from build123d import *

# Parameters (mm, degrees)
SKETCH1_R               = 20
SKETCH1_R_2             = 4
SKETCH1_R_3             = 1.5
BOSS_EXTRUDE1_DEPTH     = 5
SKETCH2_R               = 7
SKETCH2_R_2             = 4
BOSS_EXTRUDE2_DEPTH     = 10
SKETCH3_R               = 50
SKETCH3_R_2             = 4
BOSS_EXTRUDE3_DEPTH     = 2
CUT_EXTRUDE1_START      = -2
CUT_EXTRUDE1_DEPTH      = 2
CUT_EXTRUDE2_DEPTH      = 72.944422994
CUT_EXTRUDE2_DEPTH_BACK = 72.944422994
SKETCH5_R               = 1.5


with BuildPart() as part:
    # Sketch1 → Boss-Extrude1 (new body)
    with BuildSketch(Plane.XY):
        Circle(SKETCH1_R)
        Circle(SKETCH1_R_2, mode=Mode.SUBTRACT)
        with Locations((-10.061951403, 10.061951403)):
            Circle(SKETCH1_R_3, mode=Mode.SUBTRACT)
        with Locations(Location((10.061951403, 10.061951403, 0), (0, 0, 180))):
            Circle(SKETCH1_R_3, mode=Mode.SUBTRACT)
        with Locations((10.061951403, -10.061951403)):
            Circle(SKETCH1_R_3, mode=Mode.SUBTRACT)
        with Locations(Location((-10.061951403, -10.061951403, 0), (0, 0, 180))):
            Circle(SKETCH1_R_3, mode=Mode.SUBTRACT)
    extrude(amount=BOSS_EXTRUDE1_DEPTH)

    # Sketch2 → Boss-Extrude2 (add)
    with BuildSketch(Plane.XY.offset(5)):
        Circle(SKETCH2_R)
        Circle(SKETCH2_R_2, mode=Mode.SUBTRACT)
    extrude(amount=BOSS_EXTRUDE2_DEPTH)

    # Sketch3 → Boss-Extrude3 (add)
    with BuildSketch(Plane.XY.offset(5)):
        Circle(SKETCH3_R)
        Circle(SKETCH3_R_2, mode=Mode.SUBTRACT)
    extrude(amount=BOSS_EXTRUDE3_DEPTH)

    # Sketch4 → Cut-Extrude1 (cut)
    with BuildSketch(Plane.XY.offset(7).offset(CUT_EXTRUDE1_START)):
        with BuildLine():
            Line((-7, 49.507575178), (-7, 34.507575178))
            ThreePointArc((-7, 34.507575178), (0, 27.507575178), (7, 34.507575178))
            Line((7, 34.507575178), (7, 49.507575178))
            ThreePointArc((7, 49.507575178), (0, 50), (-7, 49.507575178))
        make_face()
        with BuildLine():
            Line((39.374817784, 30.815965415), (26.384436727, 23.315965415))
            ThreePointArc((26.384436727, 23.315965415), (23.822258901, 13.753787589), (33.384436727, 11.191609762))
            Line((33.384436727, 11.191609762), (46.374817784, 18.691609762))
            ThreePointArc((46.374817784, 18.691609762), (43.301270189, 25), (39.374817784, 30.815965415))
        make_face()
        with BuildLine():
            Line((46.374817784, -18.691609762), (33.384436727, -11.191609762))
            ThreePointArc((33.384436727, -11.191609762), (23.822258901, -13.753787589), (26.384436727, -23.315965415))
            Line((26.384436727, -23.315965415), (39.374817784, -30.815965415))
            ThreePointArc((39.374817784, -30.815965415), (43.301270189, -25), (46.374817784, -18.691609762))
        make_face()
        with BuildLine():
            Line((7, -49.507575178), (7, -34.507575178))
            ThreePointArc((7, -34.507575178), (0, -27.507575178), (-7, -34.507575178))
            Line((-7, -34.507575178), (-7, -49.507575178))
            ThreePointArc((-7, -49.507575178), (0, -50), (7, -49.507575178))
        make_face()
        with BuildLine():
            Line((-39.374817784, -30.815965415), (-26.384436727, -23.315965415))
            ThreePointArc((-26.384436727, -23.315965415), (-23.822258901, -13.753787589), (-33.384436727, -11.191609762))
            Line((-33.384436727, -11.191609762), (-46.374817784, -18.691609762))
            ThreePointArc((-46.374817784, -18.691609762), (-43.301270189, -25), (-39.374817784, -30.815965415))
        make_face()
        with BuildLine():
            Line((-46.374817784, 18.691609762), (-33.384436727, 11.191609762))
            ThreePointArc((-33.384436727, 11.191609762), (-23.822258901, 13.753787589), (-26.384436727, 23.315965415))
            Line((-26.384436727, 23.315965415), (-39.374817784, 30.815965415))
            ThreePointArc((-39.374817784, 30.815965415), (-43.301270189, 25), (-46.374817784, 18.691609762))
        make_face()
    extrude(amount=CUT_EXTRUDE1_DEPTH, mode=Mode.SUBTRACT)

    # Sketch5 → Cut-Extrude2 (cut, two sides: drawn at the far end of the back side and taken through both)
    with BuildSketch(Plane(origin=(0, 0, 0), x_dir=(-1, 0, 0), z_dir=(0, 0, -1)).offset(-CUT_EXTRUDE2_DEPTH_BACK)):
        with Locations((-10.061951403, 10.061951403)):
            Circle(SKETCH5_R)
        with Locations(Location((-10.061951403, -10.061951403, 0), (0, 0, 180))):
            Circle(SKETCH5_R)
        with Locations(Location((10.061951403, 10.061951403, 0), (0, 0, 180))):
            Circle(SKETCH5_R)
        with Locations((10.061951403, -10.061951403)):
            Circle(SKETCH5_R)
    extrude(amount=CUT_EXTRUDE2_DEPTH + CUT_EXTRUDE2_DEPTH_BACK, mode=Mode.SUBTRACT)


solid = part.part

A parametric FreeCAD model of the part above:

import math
import FreeCAD as App
import Part
import Sketcher
Q = App.Units.Quantity

doc = App.newDocument("Part")
body = doc.addObject("PartDesign::Body", "Body")

# Sketch on XY plane
sketch1 = doc.addObject("Sketcher::SketchObject", "Sketch")
body.addObject(sketch1)
sketch1.AttachmentSupport = (doc.XY_Plane, [""])
sketch1.MapMode = "FlatFace"
sketch1.addGeometry([
    Part.Circle(App.Vector(0, 0, 0), App.Vector(0, 0, 1), 20),  # 0
    Part.Circle(App.Vector(-10.1, -10.1, 0), App.Vector(0, 0, 1), 1.5),  # 1
    Part.Circle(App.Vector(10.1, -10.1, 0), App.Vector(0, 0, 1), 1.5),  # 2
    Part.Circle(App.Vector(0, 0, 0), App.Vector(0, 0, 1), 4),  # 3
    Part.Circle(App.Vector(-10.1, 10.1, 0), App.Vector(0, 0, 1), 1.5),  # 4
    Part.Circle(App.Vector(10.1, 10.1, 0), App.Vector(0, 0, 1), 1.5),  # 5
], False)
sketch1.addConstraint([
    Sketcher.Constraint("Coincident", 0, 3, -1, 1),
    Sketcher.Constraint("Coincident", 3, 3, -1, 1),
    Sketcher.Constraint("Equal", 1, 2),
    Sketcher.Constraint("Equal", 2, 4),
    Sketcher.Constraint("Equal", 4, 5),
    Sketcher.Constraint("Symmetric", 2, 3, 4, 3, -1, 1),
    Sketcher.Constraint("Symmetric", 1, 3, 5, 3, -1, 1),
    Sketcher.Constraint("Symmetric", 1, 3, 2, 3, -2),
    Sketcher.Constraint("Diameter", 0, 40.0),
    Sketcher.Constraint("Diameter", 1, 3.0),
    Sketcher.Constraint("Diameter", 3, 8.0),
    Sketcher.Constraint("DistanceX", 1, 3, -1, 1, 10.061951),
    Sketcher.Constraint("DistanceY", 1, 3, -1, 1, 10.061951),
])
pad1 = doc.addObject("PartDesign::Pad", "Pad")
body.addObject(pad1)
pad1.Profile = sketch1
pad1.Length = 5

# Sketch on XY plane
sketch2 = doc.addObject("Sketcher::SketchObject", "Sketch001")
body.addObject(sketch2)
sketch2.AttachmentSupport = (doc.XY_Plane, [""])
sketch2.MapMode = "FlatFace"
sketch2.AttachmentOffset = App.Placement(App.Vector(0, 0, 5), App.Rotation())
sketch2.addGeometry([
    Part.Circle(App.Vector(0, 0, 0), App.Vector(0, 0, 1), 7),
    Part.Circle(App.Vector(0, 0, 0), App.Vector(0, 0, 1), 4),
], False)
sketch2.addConstraint([
    Sketcher.Constraint("Coincident", 0, 3, -1, 1),
    Sketcher.Constraint("Coincident", 1, 3, -1, 1),
    Sketcher.Constraint("Diameter", 0, 14.0),
    Sketcher.Constraint("Diameter", 1, 8.0),
])
pad2 = doc.addObject("PartDesign::Pad", "Pad001")
body.addObject(pad2)
pad2.Profile = sketch2
pad2.Length = 10

# Sketch on XY plane
sketch3 = doc.addObject("Sketcher::SketchObject", "Sketch002")
body.addObject(sketch3)
sketch3.AttachmentSupport = (doc.XY_Plane, [""])
sketch3.MapMode = "FlatFace"
sketch3.AttachmentOffset = App.Placement(App.Vector(0, 0, 5), App.Rotation())
sketch3.addGeometry([
    Part.Circle(App.Vector(0, 0, 0), App.Vector(0, 0, 1), 50),
    Part.Circle(App.Vector(0, 0, 0), App.Vector(0, 0, 1), 4),
], False)
sketch3.addConstraint([
    Sketcher.Constraint("Coincident", 0, 3, -1, 1),
    Sketcher.Constraint("Coincident", 1, 3, -1, 1),
    Sketcher.Constraint("Diameter", 0, 100.0),
    Sketcher.Constraint("Diameter", 1, 8.0),
])
pad3 = doc.addObject("PartDesign::Pad", "Pad002")
body.addObject(pad3)
pad3.Profile = sketch3
pad3.Length = 2

# Sketch on XY plane
sketch4 = doc.addObject("Sketcher::SketchObject", "Sketch003")
body.addObject(sketch4)
sketch4.AttachmentSupport = (doc.XY_Plane, [""])
sketch4.MapMode = "FlatFace"
sketch4.AttachmentOffset = App.Placement(App.Vector(0, 0, 5), App.Rotation())
sketch4.addGeometry([
    Part.LineSegment(App.Vector(-7, 50, 0), App.Vector(-7, 35, 0)),  # 0
    Part.ArcOfCircle(Part.Circle(App.Vector(0, 35, 0), App.Vector(0, 0, 1), 7), math.radians(180), math.radians(360)),  # 1
    Part.LineSegment(App.Vector(7, 35, 0), App.Vector(7, 50, 0)),  # 2
    Part.ArcOfCircle(Part.Circle(App.Vector(0, 0, 0), App.Vector(0, 0, 1), 50), math.radians(81.95), math.radians(98.05)),  # 3
    Part.LineSegment(App.Vector(39, 31, 0), App.Vector(26, 23, 0)),  # 4
    Part.ArcOfCircle(Part.Circle(App.Vector(30, 17, 0), App.Vector(0, 0, 1), 7), math.radians(120), math.radians(300)),  # 5
    Part.LineSegment(App.Vector(33, 11, 0), App.Vector(46, 19, 0)),  # 6
    Part.ArcOfCircle(Part.Circle(App.Vector(0, 0, 0), App.Vector(0, 0, 1), 50), math.radians(21.95), math.radians(38.05)),  # 7
    Part.LineSegment(App.Vector(46, -19, 0), App.Vector(33, -11, 0)),  # 8
    Part.ArcOfCircle(Part.Circle(App.Vector(30, -17, 0), App.Vector(0, 0, 1), 7), math.radians(60), math.radians(240)),  # 9
    Part.LineSegment(App.Vector(26, -23, 0), App.Vector(39, -31, 0)),  # 10
    Part.ArcOfCircle(Part.Circle(App.Vector(0, 0, 0), App.Vector(0, 0, 1), 50), math.radians(-38.05), math.radians(-21.95)),  # 11
    Part.LineSegment(App.Vector(7, -50, 0), App.Vector(7, -35, 0)),  # 12
    Part.ArcOfCircle(Part.Circle(App.Vector(0, -35, 0), App.Vector(0, 0, 1), 7), math.radians(0), math.radians(180)),  # 13
    Part.LineSegment(App.Vector(-7, -35, 0), App.Vector(-7, -50, 0)),  # 14
    Part.ArcOfCircle(Part.Circle(App.Vector(0, 0, 0), App.Vector(0, 0, 1), 50), math.radians(-98.05), math.radians(-81.95)),  # 15
    Part.LineSegment(App.Vector(-39, -31, 0), App.Vector(-26, -23, 0)),  # 16
    Part.ArcOfCircle(Part.Circle(App.Vector(-30, -17, 0), App.Vector(0, 0, 1), 7), math.radians(-60), math.radians(120)),  # 17
    Part.LineSegment(App.Vector(-33, -11, 0), App.Vector(-46, -19, 0)),  # 18
    Part.ArcOfCircle(Part.Circle(App.Vector(0, 0, 0), App.Vector(0, 0, 1), 50), math.radians(-158.05), math.radians(-141.95)),  # 19
    Part.LineSegment(App.Vector(-46, 19, 0), App.Vector(-33, 11, 0)),  # 20
    Part.ArcOfCircle(Part.Circle(App.Vector(-30, 17, 0), App.Vector(0, 0, 1), 7), math.radians(-120), math.radians(60)),  # 21
    Part.LineSegment(App.Vector(-26, 23, 0), App.Vector(-39, 31, 0)),  # 22
    Part.ArcOfCircle(Part.Circle(App.Vector(0, 0, 0), App.Vector(0, 0, 1), 50), math.radians(141.95), math.radians(158.05)),  # 23
], False)
sketch4.addConstraint([
    Sketcher.Constraint("Tangent", 0, 2, 1, 1),
    Sketcher.Constraint("Tangent", 1, 2, 2, 1),
    Sketcher.Constraint("Coincident", 2, 2, 3, 1),
    Sketcher.Constraint("Coincident", 3, 2, 0, 1),
    Sketcher.Constraint("Tangent", 4, 2, 5, 1),
    Sketcher.Constraint("Tangent", 5, 2, 6, 1),
    Sketcher.Constraint("Coincident", 6, 2, 7, 1),
    Sketcher.Constraint("Coincident", 7, 2, 4, 1),
    Sketcher.Constraint("Tangent", 8, 2, 9, 1),
    Sketcher.Constraint("Tangent", 9, 2, 10, 1),
    Sketcher.Constraint("Coincident", 10, 2, 11, 1),
    Sketcher.Constraint("Coincident", 11, 2, 8, 1),
    Sketcher.Constraint("Tangent", 12, 2, 13, 1),
    Sketcher.Constraint("Tangent", 13, 2, 14, 1),
    Sketcher.Constraint("Coincident", 14, 2, 15, 1),
    Sketcher.Constraint("Coincident", 15, 2, 12, 1),
    Sketcher.Constraint("Tangent", 16, 2, 17, 1),
    Sketcher.Constraint("Tangent", 17, 2, 18, 1),
    Sketcher.Constraint("Coincident", 18, 2, 19, 1),
    Sketcher.Constraint("Coincident", 19, 2, 16, 1),
    Sketcher.Constraint("Tangent", 20, 2, 21, 1),
    Sketcher.Constraint("Tangent", 21, 2, 22, 1),
    Sketcher.Constraint("Coincident", 22, 2, 23, 1),
    Sketcher.Constraint("Coincident", 23, 2, 20, 1),
    Sketcher.Constraint("Vertical", 0),
    Sketcher.Constraint("Vertical", 2),
    Sketcher.Constraint("Vertical", 12),
    Sketcher.Constraint("Vertical", 14),
    Sketcher.Constraint("Coincident", 3, 3, -1, 1),
    Sketcher.Constraint("Coincident", 7, 3, -1, 1),
    Sketcher.Constraint("Coincident", 11, 3, -1, 1),
    Sketcher.Constraint("Coincident", 15, 3, -1, 1),
    Sketcher.Constraint("Coincident", 19, 3, -1, 1),
    Sketcher.Constraint("Coincident", 23, 3, -1, 1),
    Sketcher.Constraint("Equal", 1, 5),
    Sketcher.Constraint("Equal", 3, 7),
    Sketcher.Constraint("Equal", 5, 9),
    Sketcher.Constraint("Equal", 7, 11),
    Sketcher.Constraint("Equal", 9, 13),
    Sketcher.Constraint("Equal", 11, 15),
    Sketcher.Constraint("Equal", 13, 17),
    Sketcher.Constraint("Equal", 15, 19),
    Sketcher.Constraint("Equal", 17, 21),
    Sketcher.Constraint("Equal", 19, 23),
    Sketcher.Constraint("Symmetric", 1, 3, 13, 3, -1, 1),
    Sketcher.Constraint("Symmetric", 5, 3, 17, 3, -1, 1),
    Sketcher.Constraint("Symmetric", 9, 3, 21, 3, -1, 1),
    Sketcher.Constraint("Symmetric", 9, 3, 17, 3, -2),
    Sketcher.Constraint("PointOnObject", 1, 3, -2),
    Sketcher.Constraint("Parallel", 4, 6),
    Sketcher.Constraint("Parallel", 8, 10),
    Sketcher.Constraint("Parallel", 6, 16),
    Sketcher.Constraint("Parallel", 16, 18),
    Sketcher.Constraint("Parallel", 10, 20),
    Sketcher.Constraint("Parallel", 20, 22),
    Sketcher.Constraint("Horizontal", 9, 2, 16, 2),
    Sketcher.Constraint("Equal", 4, 6),
    Sketcher.Constraint("Radius", 1, 7.0),
    Sketcher.Constraint("Radius", 3, 50.0),
    Sketcher.Constraint("DistanceY", 0, 2, 0, 1, 15.0),
    Sketcher.Constraint("Angle", 4, Q("-150 deg")),
    Sketcher.Constraint("Distance", 4, 15.0),
])
pocket1 = doc.addObject("PartDesign::Pocket", "Pocket")
body.addObject(pocket1)
pocket1.Profile = sketch4
pocket1.Length = 2
pocket1.Reversed = True

# Sketch on XY plane
sketch5 = doc.addObject("Sketcher::SketchObject", "Sketch004")
body.addObject(sketch5)
sketch5.AttachmentSupport = (doc.XY_Plane, [""])
sketch5.MapMode = "FlatFace"
sketch5.addGeometry([
    Part.Circle(App.Vector(10.1, 10.1, 0), App.Vector(0, 0, 1), 1.5),
    Part.Circle(App.Vector(10.1, -10.1, 0), App.Vector(0, 0, 1), 1.5),
    Part.Circle(App.Vector(-10.1, 10.1, 0), App.Vector(0, 0, 1), 1.5),
    Part.Circle(App.Vector(-10.1, -10.1, 0), App.Vector(0, 0, 1), 1.5),
], False)
sketch5.addConstraint([
    Sketcher.Constraint("Equal", 0, 1),
    Sketcher.Constraint("Equal", 1, 2),
    Sketcher.Constraint("Equal", 2, 3),
    Sketcher.Constraint("Symmetric", 1, 3, 2, 3, -1, 1),
    Sketcher.Constraint("Symmetric", 0, 3, 3, 3, -1, 1),
    Sketcher.Constraint("Symmetric", 0, 3, 2, 3, -2),
    Sketcher.Constraint("Diameter", 0, 3.0),
    Sketcher.Constraint("DistanceX", -1, 1, 0, 3, 10.061951),
    Sketcher.Constraint("DistanceY", -1, 1, 0, 3, 10.061951),
])
pocket2 = doc.addObject("PartDesign::Pocket", "Pocket001")
body.addObject(pocket2)
pocket2.Profile = sketch5
pocket2.Type = "ThroughAll"
pocket2.Midplane = True

doc.recompute()
